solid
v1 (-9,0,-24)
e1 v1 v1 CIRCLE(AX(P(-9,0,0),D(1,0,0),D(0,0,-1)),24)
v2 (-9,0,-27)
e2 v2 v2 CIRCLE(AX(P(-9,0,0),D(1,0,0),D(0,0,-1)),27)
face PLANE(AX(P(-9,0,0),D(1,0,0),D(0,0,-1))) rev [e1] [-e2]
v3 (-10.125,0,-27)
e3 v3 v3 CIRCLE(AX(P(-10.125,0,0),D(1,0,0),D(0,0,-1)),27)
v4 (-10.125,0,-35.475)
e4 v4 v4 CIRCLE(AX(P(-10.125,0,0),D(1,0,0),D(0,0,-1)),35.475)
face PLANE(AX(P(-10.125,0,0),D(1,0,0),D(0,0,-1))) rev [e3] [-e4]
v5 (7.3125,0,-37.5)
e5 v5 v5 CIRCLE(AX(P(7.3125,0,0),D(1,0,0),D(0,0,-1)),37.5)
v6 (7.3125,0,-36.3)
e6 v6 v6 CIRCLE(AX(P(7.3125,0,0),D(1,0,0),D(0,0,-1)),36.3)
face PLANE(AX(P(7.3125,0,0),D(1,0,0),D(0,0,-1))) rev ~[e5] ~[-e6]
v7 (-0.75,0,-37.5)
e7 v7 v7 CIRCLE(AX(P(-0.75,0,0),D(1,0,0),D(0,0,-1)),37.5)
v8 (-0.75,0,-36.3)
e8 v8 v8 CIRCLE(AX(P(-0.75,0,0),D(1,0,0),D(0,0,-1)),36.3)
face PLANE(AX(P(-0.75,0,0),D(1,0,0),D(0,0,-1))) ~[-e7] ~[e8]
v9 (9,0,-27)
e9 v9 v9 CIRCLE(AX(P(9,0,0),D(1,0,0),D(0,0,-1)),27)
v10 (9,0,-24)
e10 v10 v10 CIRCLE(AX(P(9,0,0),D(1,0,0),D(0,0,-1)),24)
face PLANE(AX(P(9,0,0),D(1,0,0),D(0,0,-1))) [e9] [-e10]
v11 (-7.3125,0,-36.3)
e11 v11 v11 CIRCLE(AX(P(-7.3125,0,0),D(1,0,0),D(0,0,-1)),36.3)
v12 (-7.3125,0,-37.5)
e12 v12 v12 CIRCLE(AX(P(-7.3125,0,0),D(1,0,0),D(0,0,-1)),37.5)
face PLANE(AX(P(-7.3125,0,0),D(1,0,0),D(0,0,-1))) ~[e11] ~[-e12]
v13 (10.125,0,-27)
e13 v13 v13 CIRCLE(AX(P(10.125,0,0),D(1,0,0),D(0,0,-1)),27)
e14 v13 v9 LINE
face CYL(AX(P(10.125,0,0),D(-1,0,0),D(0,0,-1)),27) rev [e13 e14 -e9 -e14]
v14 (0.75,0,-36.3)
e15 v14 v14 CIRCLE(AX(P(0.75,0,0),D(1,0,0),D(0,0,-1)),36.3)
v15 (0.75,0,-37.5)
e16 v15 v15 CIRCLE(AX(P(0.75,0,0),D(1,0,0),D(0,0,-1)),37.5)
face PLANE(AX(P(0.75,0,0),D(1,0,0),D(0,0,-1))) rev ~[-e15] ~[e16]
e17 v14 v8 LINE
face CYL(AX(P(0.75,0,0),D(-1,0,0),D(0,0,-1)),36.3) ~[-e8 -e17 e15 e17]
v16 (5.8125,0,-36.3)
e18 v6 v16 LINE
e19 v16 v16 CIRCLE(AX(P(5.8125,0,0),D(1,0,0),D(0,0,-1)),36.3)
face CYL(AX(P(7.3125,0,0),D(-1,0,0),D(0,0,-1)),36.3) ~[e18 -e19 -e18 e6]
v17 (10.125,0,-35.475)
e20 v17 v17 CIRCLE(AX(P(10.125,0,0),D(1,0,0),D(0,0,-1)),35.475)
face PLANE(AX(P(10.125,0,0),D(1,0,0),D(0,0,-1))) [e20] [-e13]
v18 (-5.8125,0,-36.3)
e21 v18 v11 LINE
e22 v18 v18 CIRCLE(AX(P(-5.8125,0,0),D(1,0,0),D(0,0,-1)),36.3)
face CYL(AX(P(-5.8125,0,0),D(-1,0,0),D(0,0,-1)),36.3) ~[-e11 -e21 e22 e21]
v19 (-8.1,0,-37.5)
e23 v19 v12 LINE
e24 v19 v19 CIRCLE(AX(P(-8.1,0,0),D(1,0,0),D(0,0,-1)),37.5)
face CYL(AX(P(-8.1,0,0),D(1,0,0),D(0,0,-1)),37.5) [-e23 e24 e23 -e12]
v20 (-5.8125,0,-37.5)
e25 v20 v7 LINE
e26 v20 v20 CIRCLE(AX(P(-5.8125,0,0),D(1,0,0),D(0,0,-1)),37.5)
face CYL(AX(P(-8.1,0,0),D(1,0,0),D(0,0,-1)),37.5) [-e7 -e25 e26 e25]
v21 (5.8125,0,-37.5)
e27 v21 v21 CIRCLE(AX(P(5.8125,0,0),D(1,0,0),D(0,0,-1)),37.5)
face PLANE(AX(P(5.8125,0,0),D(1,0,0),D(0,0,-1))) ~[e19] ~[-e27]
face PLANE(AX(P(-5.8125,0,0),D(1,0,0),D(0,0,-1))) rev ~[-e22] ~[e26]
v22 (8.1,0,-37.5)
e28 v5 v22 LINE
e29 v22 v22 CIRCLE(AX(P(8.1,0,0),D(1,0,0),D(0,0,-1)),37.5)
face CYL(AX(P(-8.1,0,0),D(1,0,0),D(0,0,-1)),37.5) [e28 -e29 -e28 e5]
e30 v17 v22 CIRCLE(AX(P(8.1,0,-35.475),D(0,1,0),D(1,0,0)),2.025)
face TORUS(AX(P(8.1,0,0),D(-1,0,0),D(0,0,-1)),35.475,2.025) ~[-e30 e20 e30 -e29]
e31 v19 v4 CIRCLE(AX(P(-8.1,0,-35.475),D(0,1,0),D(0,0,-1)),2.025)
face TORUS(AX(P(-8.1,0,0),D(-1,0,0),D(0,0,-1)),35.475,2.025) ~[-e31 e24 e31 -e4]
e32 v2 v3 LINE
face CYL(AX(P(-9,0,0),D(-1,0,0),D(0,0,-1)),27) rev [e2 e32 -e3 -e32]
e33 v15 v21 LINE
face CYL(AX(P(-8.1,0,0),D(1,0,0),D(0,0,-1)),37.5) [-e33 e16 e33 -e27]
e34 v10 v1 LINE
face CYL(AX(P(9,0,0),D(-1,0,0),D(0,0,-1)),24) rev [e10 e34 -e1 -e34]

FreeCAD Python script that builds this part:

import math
import FreeCAD as App
import Part
import Sketcher

doc = App.newDocument("Part")
params = doc.addObject("Spreadsheet::Sheet", "Params")
for row, (alias, value) in enumerate([
    ("sketch1_height", "3 mm"),
    ("sketch1_width", "1.5 mm"),
    ("sketch1_height2", "1.2 mm"),
    ("sketch1_width2", "18 mm"),
    ("revolution_angle", "360 deg"),
], start=1):
    params.set(f"A{row}", alias)
    params.set(f"B{row}", "=" + value)
    params.setAlias(f"B{row}", alias)

body = doc.addObject("PartDesign::Body", "Body")

# Sketch on XZ plane
sketch1 = body.newObject("Sketcher::SketchObject", "Sketch")
sketch1.AttachmentSupport = (doc.getObject("XZ_Plane"), [""])
sketch1.MapMode = "FlatFace"
sketch1.addGeometry([
    Part.LineSegment(App.Vector(-9, -24, 0), App.Vector(9, -24, 0)),  # 0
    Part.LineSegment(App.Vector(9, -24, 0), App.Vector(9, -27, 0)),  # 1
    Part.LineSegment(App.Vector(9, -27, 0), App.Vector(10.125, -27, 0)),  # 2
    Part.LineSegment(App.Vector(10.125, -27, 0), App.Vector(10.125, -35.475, 0)),  # 3
    Part.ArcOfCircle(Part.Circle(App.Vector(8.1, -35.475, 0), App.Vector(0, 0, 1), 2.025), math.radians(-90), math.radians(0)),  # 4
    Part.LineSegment(App.Vector(8.1, -37.5, 0), App.Vector(7.3125, -37.5, 0)),  # 5
    Part.LineSegment(App.Vector(7.3125, -37.5, 0), App.Vector(7.3125, -36.3, 0)),  # 6
    Part.LineSegment(App.Vector(7.3125, -36.3, 0), App.Vector(5.8125, -36.3, 0)),  # 7
    Part.LineSegment(App.Vector(5.8125, -36.3, 0), App.Vector(5.8125, -37.5, 0)),  # 8
    Part.LineSegment(App.Vector(5.8125, -37.5, 0), App.Vector(0.75, -37.5, 0)),  # 9
    Part.LineSegment(App.Vector(0.75, -37.5, 0), App.Vector(0.75, -36.3, 0)),  # 10
    Part.LineSegment(App.Vector(0.75, -36.3, 0), App.Vector(-0.75, -36.3, 0)),  # 11
    Part.LineSegment(App.Vector(-0.75, -36.3, 0), App.Vector(-0.75, -37.5, 0)),  # 12
    Part.LineSegment(App.Vector(-0.75, -37.5, 0), App.Vector(-5.8125, -37.5, 0)),  # 13
    Part.LineSegment(App.Vector(-5.8125, -37.5, 0), App.Vector(-5.8125, -36.3, 0)),  # 14
    Part.LineSegment(App.Vector(-5.8125, -36.3, 0), App.Vector(-7.3125, -36.3, 0)),  # 15
    Part.LineSegment(App.Vector(-7.3125, -36.3, 0), App.Vector(-7.3125, -37.5, 0)),  # 16
    Part.LineSegment(App.Vector(-7.3125, -37.5, 0), App.Vector(-8.1, -37.5, 0)),  # 17
    Part.ArcOfCircle(Part.Circle(App.Vector(-8.1, -35.475, 0), App.Vector(0, 0, 1), 2.025), math.radians(180), math.radians(270)),  # 18
    Part.LineSegment(App.Vector(-10.125, -35.475, 0), App.Vector(-10.125, -27, 0)),  # 19
    Part.LineSegment(App.Vector(-10.125, -27, 0), App.Vector(-9, -27, 0)),  # 20
    Part.LineSegment(App.Vector(-9, -27, 0), App.Vector(-9, -24, 0)),  # 21
], False)
sketch1.addConstraint([
    Sketcher.Constraint("Coincident", 0, 2, 1, 1),
    Sketcher.Constraint("Coincident", 1, 2, 2, 1),
    Sketcher.Constraint("Coincident", 2, 2, 3, 1),
    Sketcher.Constraint("Tangent", 3, 2, 4, 2),
    Sketcher.Constraint("Tangent", 4, 1, 5, 1),
    Sketcher.Constraint("Coincident", 5, 2, 6, 1),
    Sketcher.Constraint("Coincident", 6, 2, 7, 1),
    Sketcher.Constraint("Coincident", 7, 2, 8, 1),
    Sketcher.Constraint("Coincident", 8, 2, 9, 1),
    Sketcher.Constraint("Coincident", 9, 2, 10, 1),
    Sketcher.Constraint("Coincident", 10, 2, 11, 1),
    Sketcher.Constraint("Coincident", 11, 2, 12, 1),
    Sketcher.Constraint("Coincident", 12, 2, 13, 1),
    Sketcher.Constraint("Coincident", 13, 2, 14, 1),
    Sketcher.Constraint("Coincident", 14, 2, 15, 1),
    Sketcher.Constraint("Coincident", 15, 2, 16, 1),
    Sketcher.Constraint("Coincident", 16, 2, 17, 1),
    Sketcher.Constraint("Tangent", 17, 2, 18, 2),
    Sketcher.Constraint("Tangent", 18, 1, 19, 1),
    Sketcher.Constraint("Coincident", 19, 2, 20, 1),
    Sketcher.Constraint("Coincident", 20, 2, 21, 1),
    Sketcher.Constraint("Coincident", 21, 2, 0, 1),
    Sketcher.Constraint("Horizontal", 0),
    Sketcher.Constraint("Vertical", 1),
    Sketcher.Constraint("Horizontal", 2),
    Sketcher.Constraint("Vertical", 3),
    Sketcher.Constraint("Horizontal", 5),
    Sketcher.Constraint("Vertical", 6),
    Sketcher.Constraint("Horizontal", 7),
    Sketcher.Constraint("Vertical", 8),
    Sketcher.Constraint("Horizontal", 9),
    Sketcher.Constraint("Vertical", 10),
    Sketcher.Constraint("Horizontal", 11),
    Sketcher.Constraint("Vertical", 12),
    Sketcher.Constraint("Horizontal", 13),
    Sketcher.Constraint("Vertical", 14),
    Sketcher.Constraint("Horizontal", 15),
    Sketcher.Constraint("Vertical", 16),
    Sketcher.Constraint("Horizontal", 17),
    Sketcher.Constraint("Vertical", 19),
    Sketcher.Constraint("Horizontal", 20),
    Sketcher.Constraint("Vertical", 21),
    Sketcher.Constraint("Equal", 4, 18),
    Sketcher.Constraint("Symmetric", 4, 3, 18, 3, -2),
    Sketcher.Constraint("Symmetric", 9, 2, 12, 2, -2),
    Sketcher.Constraint("Symmetric", 7, 2, 14, 2, -2),
    Sketcher.Constraint("Symmetric", 1, 2, 20, 2, -2),
    Sketcher.Constraint("Horizontal", 5, 2, 8, 2),
    Sketcher.Constraint("Horizontal", 7, 2, 10, 2),
    Sketcher.Constraint("Equal", 7, 11),
    Sketcher.Constraint("Equal", 11, 15),
    Sketcher.Constraint("DistanceY", 1, 2, 1, 1, 3.0),
    Sketcher.Constraint("DistanceX", 7, 2, 7, 1, 1.5),
    Sketcher.Constraint("DistanceY", 6, 1, 6, 2, 1.2),
    Sketcher.Constraint("DistanceY", 0, 2, -1, 1, 24.0),
    Sketcher.Constraint("Radius", 4, 2.025),
    Sketcher.Constraint("DistanceY", 4, 1, -1, 1, 37.5),
    Sketcher.Constraint("DistanceX", 0, 1, 0, 2, 18.0),
    Sketcher.Constraint("DistanceX", 2, 1, 2, 2, 1.125),
    Sketcher.Constraint("DistanceX", 9, 2, 9, 1, 5.0625),
])
sketch1.setExpression("Constraints[51]", "Params.sketch1_height")
sketch1.setExpression("Constraints[52]", "Params.sketch1_width")
sketch1.setExpression("Constraints[53]", "Params.sketch1_height2")
sketch1.setExpression("Constraints[57]", "Params.sketch1_width2")
revolution = body.newObject("PartDesign::Revolution", "Revolution")
revolution.Profile = sketch1
revolution.ReferenceAxis = (sketch1, ["H_Axis"])
revolution.setExpression("Angle", "Params.revolution_angle")

doc.recompute()
